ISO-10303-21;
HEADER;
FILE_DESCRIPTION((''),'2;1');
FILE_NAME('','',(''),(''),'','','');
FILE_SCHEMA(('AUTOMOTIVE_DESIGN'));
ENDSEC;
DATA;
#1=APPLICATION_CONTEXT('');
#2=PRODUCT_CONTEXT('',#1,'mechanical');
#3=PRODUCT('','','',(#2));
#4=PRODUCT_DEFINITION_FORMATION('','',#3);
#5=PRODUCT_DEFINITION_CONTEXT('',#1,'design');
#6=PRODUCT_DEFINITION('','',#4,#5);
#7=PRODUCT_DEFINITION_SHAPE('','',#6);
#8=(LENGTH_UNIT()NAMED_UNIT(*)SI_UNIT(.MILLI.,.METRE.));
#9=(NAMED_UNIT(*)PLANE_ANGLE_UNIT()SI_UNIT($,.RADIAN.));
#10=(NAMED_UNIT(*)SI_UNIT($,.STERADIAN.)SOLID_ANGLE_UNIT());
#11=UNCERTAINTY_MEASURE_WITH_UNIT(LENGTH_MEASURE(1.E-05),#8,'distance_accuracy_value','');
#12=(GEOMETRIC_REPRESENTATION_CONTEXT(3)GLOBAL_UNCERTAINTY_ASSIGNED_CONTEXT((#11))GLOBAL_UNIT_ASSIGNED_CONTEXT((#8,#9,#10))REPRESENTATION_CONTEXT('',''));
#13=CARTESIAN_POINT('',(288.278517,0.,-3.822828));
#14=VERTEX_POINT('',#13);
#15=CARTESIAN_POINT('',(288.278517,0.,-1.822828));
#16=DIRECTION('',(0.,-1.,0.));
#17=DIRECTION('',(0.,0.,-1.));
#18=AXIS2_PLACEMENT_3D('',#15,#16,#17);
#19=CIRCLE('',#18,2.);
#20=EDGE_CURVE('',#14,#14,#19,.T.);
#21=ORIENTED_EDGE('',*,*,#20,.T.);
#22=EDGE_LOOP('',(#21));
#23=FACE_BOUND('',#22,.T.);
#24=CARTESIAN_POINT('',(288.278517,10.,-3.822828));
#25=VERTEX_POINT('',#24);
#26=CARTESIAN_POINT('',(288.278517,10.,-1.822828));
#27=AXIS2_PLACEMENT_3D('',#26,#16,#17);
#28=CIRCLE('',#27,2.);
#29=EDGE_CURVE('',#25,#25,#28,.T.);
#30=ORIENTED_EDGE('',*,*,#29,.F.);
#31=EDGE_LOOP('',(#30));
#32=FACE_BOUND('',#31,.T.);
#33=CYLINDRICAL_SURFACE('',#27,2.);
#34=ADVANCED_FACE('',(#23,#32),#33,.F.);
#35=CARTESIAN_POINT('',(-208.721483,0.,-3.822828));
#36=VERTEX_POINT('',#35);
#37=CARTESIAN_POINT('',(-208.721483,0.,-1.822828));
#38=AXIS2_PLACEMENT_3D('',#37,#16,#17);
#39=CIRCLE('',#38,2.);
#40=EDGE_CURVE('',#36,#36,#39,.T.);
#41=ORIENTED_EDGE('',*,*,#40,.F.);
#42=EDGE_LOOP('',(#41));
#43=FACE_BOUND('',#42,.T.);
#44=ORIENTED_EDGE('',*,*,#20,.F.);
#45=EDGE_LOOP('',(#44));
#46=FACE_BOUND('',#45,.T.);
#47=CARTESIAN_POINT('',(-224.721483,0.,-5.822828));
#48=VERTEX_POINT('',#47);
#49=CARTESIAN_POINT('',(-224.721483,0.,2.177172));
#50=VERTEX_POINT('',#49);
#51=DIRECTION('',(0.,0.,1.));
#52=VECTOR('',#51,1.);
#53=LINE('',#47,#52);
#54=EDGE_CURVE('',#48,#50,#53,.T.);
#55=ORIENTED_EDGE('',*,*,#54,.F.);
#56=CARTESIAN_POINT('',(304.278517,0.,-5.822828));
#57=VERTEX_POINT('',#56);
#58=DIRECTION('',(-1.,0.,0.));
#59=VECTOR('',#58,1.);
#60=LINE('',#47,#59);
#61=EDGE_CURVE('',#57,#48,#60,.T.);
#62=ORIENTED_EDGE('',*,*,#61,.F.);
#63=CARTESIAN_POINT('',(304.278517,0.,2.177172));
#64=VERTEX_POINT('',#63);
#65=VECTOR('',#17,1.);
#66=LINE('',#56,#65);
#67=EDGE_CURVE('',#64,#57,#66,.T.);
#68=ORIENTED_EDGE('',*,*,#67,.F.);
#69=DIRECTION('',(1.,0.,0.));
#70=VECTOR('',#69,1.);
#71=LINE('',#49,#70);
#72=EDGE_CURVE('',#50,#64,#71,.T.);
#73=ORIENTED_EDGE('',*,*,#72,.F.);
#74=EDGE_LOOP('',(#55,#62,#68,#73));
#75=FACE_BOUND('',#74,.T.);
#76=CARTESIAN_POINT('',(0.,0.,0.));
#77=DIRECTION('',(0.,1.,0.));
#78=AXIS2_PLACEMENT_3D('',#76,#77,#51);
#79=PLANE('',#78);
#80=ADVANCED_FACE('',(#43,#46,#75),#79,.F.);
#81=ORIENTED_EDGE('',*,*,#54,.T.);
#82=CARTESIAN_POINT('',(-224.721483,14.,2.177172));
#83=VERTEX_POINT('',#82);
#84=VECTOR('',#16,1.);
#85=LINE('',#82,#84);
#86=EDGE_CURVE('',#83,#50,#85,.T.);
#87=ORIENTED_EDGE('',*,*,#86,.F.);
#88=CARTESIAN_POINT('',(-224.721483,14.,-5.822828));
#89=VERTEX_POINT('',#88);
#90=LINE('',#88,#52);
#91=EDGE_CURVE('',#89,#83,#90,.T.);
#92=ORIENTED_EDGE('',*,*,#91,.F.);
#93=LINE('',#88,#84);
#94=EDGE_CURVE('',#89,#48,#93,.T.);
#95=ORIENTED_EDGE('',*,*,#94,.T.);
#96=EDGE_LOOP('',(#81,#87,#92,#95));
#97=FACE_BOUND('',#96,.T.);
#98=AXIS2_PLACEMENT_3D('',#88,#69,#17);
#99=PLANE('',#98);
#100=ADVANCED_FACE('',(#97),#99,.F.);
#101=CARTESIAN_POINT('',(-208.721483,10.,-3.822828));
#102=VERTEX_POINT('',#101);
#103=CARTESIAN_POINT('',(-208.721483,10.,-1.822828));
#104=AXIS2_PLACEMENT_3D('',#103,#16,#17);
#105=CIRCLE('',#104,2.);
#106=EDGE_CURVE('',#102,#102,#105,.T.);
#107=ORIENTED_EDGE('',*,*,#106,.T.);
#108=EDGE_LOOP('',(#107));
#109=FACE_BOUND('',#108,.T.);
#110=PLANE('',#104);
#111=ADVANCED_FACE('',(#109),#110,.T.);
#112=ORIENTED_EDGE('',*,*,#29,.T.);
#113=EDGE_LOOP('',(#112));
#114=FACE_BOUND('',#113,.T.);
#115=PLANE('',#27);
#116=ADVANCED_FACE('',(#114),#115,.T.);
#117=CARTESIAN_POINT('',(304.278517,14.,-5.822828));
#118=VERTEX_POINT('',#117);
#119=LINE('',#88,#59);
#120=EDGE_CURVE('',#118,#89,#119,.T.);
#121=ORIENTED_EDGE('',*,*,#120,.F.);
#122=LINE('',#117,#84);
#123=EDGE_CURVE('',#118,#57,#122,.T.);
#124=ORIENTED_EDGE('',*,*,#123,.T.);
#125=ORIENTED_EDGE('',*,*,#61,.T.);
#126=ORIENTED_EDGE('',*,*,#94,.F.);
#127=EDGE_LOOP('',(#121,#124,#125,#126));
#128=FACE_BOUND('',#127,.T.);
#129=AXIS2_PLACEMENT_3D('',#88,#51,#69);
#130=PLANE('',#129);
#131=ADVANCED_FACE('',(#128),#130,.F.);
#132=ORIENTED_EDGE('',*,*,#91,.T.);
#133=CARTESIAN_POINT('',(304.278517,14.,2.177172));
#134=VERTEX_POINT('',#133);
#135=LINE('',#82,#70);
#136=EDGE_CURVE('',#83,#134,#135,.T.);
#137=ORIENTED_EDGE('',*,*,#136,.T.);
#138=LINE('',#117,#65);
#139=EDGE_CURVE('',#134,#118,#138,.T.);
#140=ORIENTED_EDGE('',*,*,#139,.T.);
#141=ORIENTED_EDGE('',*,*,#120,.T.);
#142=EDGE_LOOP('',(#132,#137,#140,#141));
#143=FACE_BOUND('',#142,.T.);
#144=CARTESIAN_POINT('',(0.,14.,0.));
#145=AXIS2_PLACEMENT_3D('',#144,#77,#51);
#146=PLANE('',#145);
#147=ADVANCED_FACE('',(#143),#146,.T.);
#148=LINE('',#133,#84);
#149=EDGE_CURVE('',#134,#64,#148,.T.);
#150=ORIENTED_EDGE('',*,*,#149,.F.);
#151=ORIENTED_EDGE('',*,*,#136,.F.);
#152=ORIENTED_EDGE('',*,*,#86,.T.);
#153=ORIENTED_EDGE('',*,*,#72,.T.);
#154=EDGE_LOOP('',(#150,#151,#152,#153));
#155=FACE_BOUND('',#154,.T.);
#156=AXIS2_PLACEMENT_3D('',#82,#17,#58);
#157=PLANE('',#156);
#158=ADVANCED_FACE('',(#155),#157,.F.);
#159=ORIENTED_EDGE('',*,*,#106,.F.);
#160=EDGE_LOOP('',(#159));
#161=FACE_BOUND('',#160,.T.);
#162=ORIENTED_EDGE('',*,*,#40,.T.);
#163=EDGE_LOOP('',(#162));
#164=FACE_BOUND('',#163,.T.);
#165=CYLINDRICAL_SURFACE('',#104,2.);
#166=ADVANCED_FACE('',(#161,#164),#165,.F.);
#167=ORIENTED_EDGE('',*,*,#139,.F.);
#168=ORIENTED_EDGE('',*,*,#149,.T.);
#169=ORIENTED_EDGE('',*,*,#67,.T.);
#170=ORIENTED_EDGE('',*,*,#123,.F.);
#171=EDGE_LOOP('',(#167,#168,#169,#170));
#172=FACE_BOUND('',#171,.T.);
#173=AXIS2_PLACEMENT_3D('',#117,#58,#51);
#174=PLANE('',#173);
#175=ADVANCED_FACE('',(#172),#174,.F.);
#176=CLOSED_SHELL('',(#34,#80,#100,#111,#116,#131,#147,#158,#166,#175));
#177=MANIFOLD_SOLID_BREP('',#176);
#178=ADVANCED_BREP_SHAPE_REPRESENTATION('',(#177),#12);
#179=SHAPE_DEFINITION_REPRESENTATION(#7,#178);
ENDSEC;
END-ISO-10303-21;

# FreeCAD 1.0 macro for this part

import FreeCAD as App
import Part
import Sketcher
Q = App.Units.Quantity


def add_polygon(sketch, points):
    """Adds a closed chain of lines whose ends are joined by coincident constraints."""
    first, n = sketch.GeometryCount, len(points)
    for a, b in zip(points, points[1:] + points[:1]):
        sketch.addGeometry(Part.LineSegment(App.Vector(*a, 0), App.Vector(*b, 0)), False)
    for i in range(n):
        sketch.addConstraint(Sketcher.Constraint("Coincident", first + i, 2, first + (i + 1) % n, 1))

doc = App.newDocument("Part")
body = doc.addObject("PartDesign::Body", "Body")

# Sketch on XZ plane
sketch1 = doc.addObject("Sketcher::SketchObject", "Sketch")
body.addObject(sketch1)
sketch1.AttachmentSupport = (doc.XZ_Plane, [""])
sketch1.MapMode = "FlatFace"
add_polygon(sketch1, [(-225, -6), (-225, 2), (304, 2), (304, -6)])  # lines 0-3
sketch1.addConstraint([
    Sketcher.Constraint("Vertical", 0),
    Sketcher.Constraint("Horizontal", 1),
    Sketcher.Constraint("Vertical", 2),
    Sketcher.Constraint("Horizontal", 3),
    Sketcher.Constraint("DistanceX", 1, 1, 1, 2, Q("529 mm")),
    Sketcher.Constraint("DistanceY", 0, 1, 0, 2, Q("8 mm")),
    Sketcher.Constraint("DistanceX", 0, 2, -1, 1, Q("224.721483 mm")),
    Sketcher.Constraint("DistanceY", -1, 1, 0, 2, Q("2.177172 mm")),
])
pad1 = doc.addObject("PartDesign::Pad", "Pad")
body.addObject(pad1)
pad1.Profile = sketch1
pad1.Length = 14
pad1.Reversed = True

# Sketch on XZ plane
sketch2 = doc.addObject("Sketcher::SketchObject", "Sketch001")
body.addObject(sketch2)
sketch2.AttachmentSupport = (doc.XZ_Plane, [""])
sketch2.MapMode = "FlatFace"
sketch2.addGeometry([
    Part.Circle(App.Vector(-208.7, -1.8, 0), App.Vector(0, 0, 1), 2),
    Part.Circle(App.Vector(288.3, -1.8, 0), App.Vector(0, 0, 1), 2),
], False)
sketch2.addConstraint([
    Sketcher.Constraint("Equal", 0, 1),
    Sketcher.Constraint("Horizontal", 0, 3, 1, 3),
    Sketcher.Constraint("Diameter", 0, Q("4 mm")),
    Sketcher.Constraint("DistanceX", 0, 3, 1, 3, Q("497 mm")),
    Sketcher.Constraint("DistanceX", 0, 3, -1, 1, Q("208.721483 mm")),
    Sketcher.Constraint("DistanceY", 0, 3, -1, 1, Q("1.822828 mm")),
])
pocket1 = doc.addObject("PartDesign::Pocket", "Pocket")
body.addObject(pocket1)
pocket1.Profile = sketch2
pocket1.Length = 10

doc.recompute()
